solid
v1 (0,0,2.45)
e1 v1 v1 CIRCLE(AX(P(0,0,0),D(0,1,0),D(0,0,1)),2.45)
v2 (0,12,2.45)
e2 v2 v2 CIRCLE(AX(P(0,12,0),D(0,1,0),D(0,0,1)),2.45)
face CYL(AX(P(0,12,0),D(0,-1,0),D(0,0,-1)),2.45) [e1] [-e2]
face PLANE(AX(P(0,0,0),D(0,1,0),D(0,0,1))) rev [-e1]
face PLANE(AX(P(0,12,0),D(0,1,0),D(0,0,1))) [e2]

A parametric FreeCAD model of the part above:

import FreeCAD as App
import Part
import Sketcher

V = App.Vector

doc = App.newDocument("Part")
body = doc.addObject("PartDesign::Body", "Body")

# Sketch on XZ plane
sketch1 = doc.addObject("Sketcher::SketchObject", "Sketch")
body.addObject(sketch1)
sketch1.AttachmentSupport = (doc.XZ_Plane, [""])
sketch1.MapMode = "FlatFace"
sketch1.addGeometry(Part.Circle(V(0, 0, 0), V(0, 0, 1), 2.5), False)
sketch1.addConstraint([
    Sketcher.Constraint("Coincident", 0, 3, -1, 1),
    Sketcher.Constraint("Diameter", 0, 4.9),
])
pad1 = doc.addObject("PartDesign::Pad", "Pad")
body.addObject(pad1)
pad1.Profile = sketch1
pad1.Length = 12
pad1.Reversed = True

doc.recompute()
